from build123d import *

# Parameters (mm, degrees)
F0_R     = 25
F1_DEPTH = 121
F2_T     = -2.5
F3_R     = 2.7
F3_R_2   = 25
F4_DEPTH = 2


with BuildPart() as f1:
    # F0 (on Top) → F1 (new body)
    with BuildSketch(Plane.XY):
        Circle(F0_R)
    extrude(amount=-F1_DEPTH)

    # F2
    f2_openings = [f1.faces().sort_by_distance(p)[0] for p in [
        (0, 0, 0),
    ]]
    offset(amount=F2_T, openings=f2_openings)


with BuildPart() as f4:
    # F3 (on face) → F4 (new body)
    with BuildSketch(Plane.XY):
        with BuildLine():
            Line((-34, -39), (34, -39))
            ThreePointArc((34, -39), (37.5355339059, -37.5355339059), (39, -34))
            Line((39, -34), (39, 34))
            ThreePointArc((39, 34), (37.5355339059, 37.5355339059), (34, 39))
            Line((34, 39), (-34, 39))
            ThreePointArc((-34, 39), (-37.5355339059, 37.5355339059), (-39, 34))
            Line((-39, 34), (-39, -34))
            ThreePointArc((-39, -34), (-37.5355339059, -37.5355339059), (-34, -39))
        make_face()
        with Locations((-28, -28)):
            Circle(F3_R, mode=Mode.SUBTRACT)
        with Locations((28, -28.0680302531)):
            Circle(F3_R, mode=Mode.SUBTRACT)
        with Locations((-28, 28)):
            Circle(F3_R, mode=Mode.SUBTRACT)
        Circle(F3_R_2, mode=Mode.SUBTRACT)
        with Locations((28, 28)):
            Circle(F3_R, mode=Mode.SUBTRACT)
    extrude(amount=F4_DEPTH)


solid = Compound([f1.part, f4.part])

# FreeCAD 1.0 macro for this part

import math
import FreeCAD as App
import Part
import Sketcher
from FreeCAD import Vector


def faces_at(feature, points):
    """Names of the faces that lie closest to the given points."""
    faces = feature.Shape.Faces
    near = lambda p: min(range(len(faces)), key=lambda i: faces[i].distToShape(Part.Vertex(*p))[0])
    return sorted({f"Face{near(p) + 1}" for p in points})

doc = App.newDocument("Part")
body = doc.addObject("PartDesign::Body", "Body")

sketch1 = body.newObject("Sketcher::SketchObject", "Sketch")
sketch1.AttachmentSupport = (doc.getObject("XY_Plane"), [""])
sketch1.MapMode = "FlatFace"
sketch1.addGeometry(Part.Circle(Vector(0, 0, 0), Vector(0, 0, 1), 25), False)
sketch1.addConstraint([
    Sketcher.Constraint("Coincident", 0, 3, -1, 1),
    Sketcher.Constraint("Diameter", 0, 50.0),
])
pad1 = body.newObject("PartDesign::Pad", "Pad")
pad1.Profile = sketch1
pad1.Length = 121
pad1.Reversed = True
doc.recompute()

thickness = body.newObject("PartDesign::Thickness", "Thickness")
thickness.Base = (pad1, faces_at(pad1, [(0, 0, 0)]))
thickness.Value = 2.5
thickness.Reversed = True
thickness.Join = "Arc"
body2 = doc.addObject("PartDesign::Body", "Body001")

sketch2 = body2.newObject("Sketcher::SketchObject", "Sketch001")
sketch2.AttachmentSupport = (doc.getObject("XY_Plane001"), [""])
sketch2.MapMode = "FlatFace"
sketch2.addGeometry([
    Part.LineSegment(Vector(-34, -39, 0), Vector(34, -39, 0)),
    Part.ArcOfCircle(Part.Circle(Vector(34, -34, 0), Vector(0, 0, 1), 5), math.radians(-90), math.radians(0)),
    Part.LineSegment(Vector(39, -34, 0), Vector(39, 34, 0)),
    Part.ArcOfCircle(Part.Circle(Vector(34, 34, 0), Vector(0, 0, 1), 5), math.radians(0), math.radians(90)),
    Part.LineSegment(Vector(34, 39, 0), Vector(-34, 39, 0)),
    Part.ArcOfCircle(Part.Circle(Vector(-34, 34, 0), Vector(0, 0, 1), 5), math.radians(90), math.radians(180)),
    Part.LineSegment(Vector(-39, 34, 0), Vector(-39, -34, 0)),
    Part.ArcOfCircle(Part.Circle(Vector(-34, -34, 0), Vector(0, 0, 1), 5), math.radians(180), math.radians(270)),
    Part.Circle(Vector(-28, -28, 0), Vector(0, 0, 1), 2.7),
    Part.Circle(Vector(28, -28.06803, 0), Vector(0, 0, 1), 2.7),
    Part.Circle(Vector(-28, 28, 0), Vector(0, 0, 1), 2.7),
    Part.Circle(Vector(0, 0, 0), Vector(0, 0, 1), 25),
    Part.Circle(Vector(28, 28, 0), Vector(0, 0, 1), 2.7),
], False)
sketch2.addConstraint([
    Sketcher.Constraint("Tangent", 0, 2, 1, 1),
    Sketcher.Constraint("Tangent", 1, 2, 2, 1),
    Sketcher.Constraint("Tangent", 2, 2, 3, 1),
    Sketcher.Constraint("Tangent", 3, 2, 4, 1),
    Sketcher.Constraint("Tangent", 4, 2, 5, 1),
    Sketcher.Constraint("Tangent", 5, 2, 6, 1),
    Sketcher.Constraint("Tangent", 6, 2, 7, 1),
    Sketcher.Constraint("Tangent", 7, 2, 0, 1),
    Sketcher.Constraint("Horizontal", 0),
    Sketcher.Constraint("Vertical", 2),
    Sketcher.Constraint("Horizontal", 4),
    Sketcher.Constraint("Vertical", 6),
    Sketcher.Constraint("Coincident", 11, 3, -1, 1),
    Sketcher.Constraint("Equal", 1, 3),
    Sketcher.Constraint("Equal", 3, 5),
    Sketcher.Constraint("Equal", 5, 7),
    Sketcher.Constraint("Equal", 8, 9),
    Sketcher.Constraint("Equal", 9, 10),
    Sketcher.Constraint("Equal", 10, 12),
    Sketcher.Constraint("Symmetric", 1, 3, 5, 3, -1, 1),
    Sketcher.Constraint("Symmetric", 8, 3, 12, 3, -1, 1),
    Sketcher.Constraint("Symmetric", 10, 3, 12, 3, -2),
    Sketcher.Constraint("Vertical", 9, 3, 12, 3),
    Sketcher.Constraint("Equal", 4, 2),
    Sketcher.Constraint("Diameter", 11, 50.0),
    Sketcher.Constraint("Radius", 1, 5.0),
    Sketcher.Constraint("Diameter", 8, 5.4),
    Sketcher.Constraint("DistanceX", 0, 1, 0, 2, 68.0),
    Sketcher.Constraint("DistanceX", 8, 3, -1, 1, 28.0),
    Sketcher.Constraint("DistanceY", 8, 3, -1, 1, 28.0),
    Sketcher.Constraint("DistanceY", 9, 3, -1, 1, 28.06803),
])
pad2 = body2.newObject("PartDesign::Pad", "Pad001")
pad2.Profile = sketch2
pad2.Length = 2

doc.recompute()
